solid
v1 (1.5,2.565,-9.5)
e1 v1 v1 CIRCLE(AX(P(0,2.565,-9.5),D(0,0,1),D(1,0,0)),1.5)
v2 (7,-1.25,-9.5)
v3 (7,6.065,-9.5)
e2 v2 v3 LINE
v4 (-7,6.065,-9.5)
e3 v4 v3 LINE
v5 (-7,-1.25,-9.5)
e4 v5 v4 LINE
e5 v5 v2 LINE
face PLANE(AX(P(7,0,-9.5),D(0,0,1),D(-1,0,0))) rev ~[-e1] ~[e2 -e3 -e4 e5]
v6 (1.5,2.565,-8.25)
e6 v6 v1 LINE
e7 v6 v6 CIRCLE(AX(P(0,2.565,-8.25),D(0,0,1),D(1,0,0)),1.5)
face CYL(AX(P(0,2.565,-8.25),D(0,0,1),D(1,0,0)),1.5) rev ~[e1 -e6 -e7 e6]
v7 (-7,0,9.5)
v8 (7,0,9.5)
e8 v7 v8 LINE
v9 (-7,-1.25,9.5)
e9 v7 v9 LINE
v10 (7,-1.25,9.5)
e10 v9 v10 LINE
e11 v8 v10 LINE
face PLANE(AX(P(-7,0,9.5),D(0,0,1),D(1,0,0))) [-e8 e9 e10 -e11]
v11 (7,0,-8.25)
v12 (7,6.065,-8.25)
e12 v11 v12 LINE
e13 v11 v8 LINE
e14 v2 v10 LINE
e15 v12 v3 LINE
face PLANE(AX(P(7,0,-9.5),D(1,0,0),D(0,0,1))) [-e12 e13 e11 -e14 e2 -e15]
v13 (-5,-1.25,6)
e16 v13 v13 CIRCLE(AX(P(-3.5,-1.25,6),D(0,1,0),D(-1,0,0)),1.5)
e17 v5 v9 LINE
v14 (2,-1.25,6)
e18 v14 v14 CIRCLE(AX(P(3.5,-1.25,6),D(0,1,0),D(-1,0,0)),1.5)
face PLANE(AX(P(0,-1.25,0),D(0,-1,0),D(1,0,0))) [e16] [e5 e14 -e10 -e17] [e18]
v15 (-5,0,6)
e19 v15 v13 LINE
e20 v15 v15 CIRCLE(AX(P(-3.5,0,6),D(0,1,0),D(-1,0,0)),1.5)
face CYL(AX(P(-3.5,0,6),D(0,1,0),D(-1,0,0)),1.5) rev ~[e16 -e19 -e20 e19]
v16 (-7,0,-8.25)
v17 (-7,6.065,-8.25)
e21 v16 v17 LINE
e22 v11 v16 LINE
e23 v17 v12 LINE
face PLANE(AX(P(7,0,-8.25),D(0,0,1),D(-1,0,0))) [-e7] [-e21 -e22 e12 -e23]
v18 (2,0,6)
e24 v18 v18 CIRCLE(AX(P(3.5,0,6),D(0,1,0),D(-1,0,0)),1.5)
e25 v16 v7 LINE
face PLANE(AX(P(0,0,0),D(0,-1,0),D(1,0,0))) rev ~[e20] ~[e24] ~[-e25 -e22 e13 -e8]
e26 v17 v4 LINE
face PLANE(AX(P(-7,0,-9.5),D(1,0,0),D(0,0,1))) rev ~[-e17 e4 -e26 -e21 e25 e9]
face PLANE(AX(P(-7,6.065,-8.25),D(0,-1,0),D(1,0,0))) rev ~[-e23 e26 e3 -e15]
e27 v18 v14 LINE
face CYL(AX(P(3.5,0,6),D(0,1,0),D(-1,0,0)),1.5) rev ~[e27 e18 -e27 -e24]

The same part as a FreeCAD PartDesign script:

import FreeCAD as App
import Part
import Sketcher
Q = App.Units.Quantity


def add_polygon(sketch, points):
    """Adds a closed chain of lines whose ends are joined by coincident constraints."""
    first, n = sketch.GeometryCount, len(points)
    for a, b in zip(points, points[1:] + points[:1]):
        sketch.addGeometry(Part.LineSegment(App.Vector(*a, 0), App.Vector(*b, 0)), False)
    for i in range(n):
        sketch.addConstraint(Sketcher.Constraint("Coincident", first + i, 2, first + (i + 1) % n, 1))

doc = App.newDocument("Part")
body = doc.addObject("PartDesign::Body", "Body")

# Sketch on XZ plane
sketch1 = body.newObject("Sketcher::SketchObject", "Sketch")
sketch1.AttachmentSupport = (doc.getObject("XZ_Plane"), [""])
sketch1.MapMode = "FlatFace"
add_polygon(sketch1, [(-7, 9.5), (-7, -9.5), (7, -9.5), (7, 9.5)])  # lines 0-3
sketch1.addConstraint(Sketcher.Constraint("Vertical", 0))
sketch1.addConstraint(Sketcher.Constraint("Horizontal", 1))
sketch1.addConstraint(Sketcher.Constraint("Vertical", 2))
sketch1.addConstraint(Sketcher.Constraint("Horizontal", 3))
sketch1.addConstraint(Sketcher.Constraint("Symmetric", 0, 2, 2, 2, -1, 1))
sketch1.addConstraint(Sketcher.Constraint("DistanceX", 1, 1, 1, 2, Q("14 mm")))
sketch1.addConstraint(Sketcher.Constraint("DistanceY", 0, 2, 0, 1, Q("19 mm")))
pad1 = body.newObject("PartDesign::Pad", "Pad")
pad1.Profile = sketch1
pad1.Length = 1.25

# Sketch on XZ plane
sketch2 = body.newObject("Sketcher::SketchObject", "Sketch001")
sketch2.AttachmentSupport = (doc.getObject("XZ_Plane"), [""])
sketch2.MapMode = "FlatFace"
add_polygon(sketch2, [(7, -8.25), (7, -9.5), (-7, -9.5), (-7, -8.25)])  # lines 0-3
sketch2.addConstraint(Sketcher.Constraint("Vertical", 0))
sketch2.addConstraint(Sketcher.Constraint("Horizontal", 1))
sketch2.addConstraint(Sketcher.Constraint("Vertical", 2))
sketch2.addConstraint(Sketcher.Constraint("Horizontal", 3))
sketch2.addConstraint(Sketcher.Constraint("DistanceX", 1, 2, 1, 1, Q("14 mm")))
sketch2.addConstraint(Sketcher.Constraint("DistanceX", -1, 1, 0, 2, Q("7 mm")))
sketch2.addConstraint(Sketcher.Constraint("DistanceY", 0, 2, 0, 1, Q("1.25 mm")))
sketch2.addConstraint(Sketcher.Constraint("DistanceY", 0, 2, -1, 1, Q("9.5 mm")))
pad2 = body.newObject("PartDesign::Pad", "Pad001")
pad2.Profile = sketch2
pad2.Length = 17.75
pad2.Reversed = True

# Sketch on XZ plane
sketch3 = body.newObject("Sketcher::SketchObject", "Sketch002")
sketch3.AttachmentSupport = (doc.getObject("XZ_Plane"), [""])
sketch3.MapMode = "FlatFace"
sketch3.addGeometry(Part.Circle(App.Vector(3.5, 6, 0), App.Vector(0, 0, 1), 1.5), False)
sketch3.addGeometry(Part.Circle(App.Vector(-3.5, 6, 0), App.Vector(0, 0, 1), 1.5), False)
sketch3.addConstraint(Sketcher.Constraint("Equal", 0, 1))
sketch3.addConstraint(Sketcher.Constraint("Symmetric", 0, 3, 1, 3, -2))
sketch3.addConstraint(Sketcher.Constraint("Diameter", 0, Q("3 mm")))
sketch3.addConstraint(Sketcher.Constraint("DistanceY", -1, 1, 0, 3, Q("6 mm")))
sketch3.addConstraint(Sketcher.Constraint("DistanceX", 1, 3, 0, 3, Q("7 mm")))
pocket1 = body.newObject("PartDesign::Pocket", "Pocket")
pocket1.Profile = sketch3
pocket1.Length = 25
pocket1.Reversed = True

# Sketch on XY plane
sketch4 = body.newObject("Sketcher::SketchObject", "Sketch003")
sketch4.AttachmentSupport = (doc.getObject("XY_Plane"), [""])
sketch4.MapMode = "FlatFace"
sketch4.AttachmentOffset = App.Placement(App.Vector(0, 0, -8.25), App.Rotation())
sketch4.addGeometry(Part.Circle(App.Vector(0, 2.565, 0), App.Vector(0, 0, 1), 1.5), False)
sketch4.addConstraint(Sketcher.Constraint("PointOnObject", 0, 3, -2))
sketch4.addConstraint(Sketcher.Constraint("Diameter", 0, Q("3 mm")))
sketch4.addConstraint(Sketcher.Constraint("DistanceY", -1, 1, 0, 3, Q("2.565 mm")))
pocket2 = body.newObject("PartDesign::Pocket", "Pocket001")
pocket2.Profile = sketch4
pocket2.Length = 25

# Sketch on XY plane
sketch5 = body.newObject("Sketcher::SketchObject", "Sketch004")
sketch5.AttachmentSupport = (doc.getObject("XY_Plane"), [""])
sketch5.MapMode = "FlatFace"
sketch5.AttachmentOffset = App.Placement(App.Vector(0, 0, -8.25), App.Rotation())
add_polygon(sketch5, [(-7, 17.75), (-7, 6.065), (7, 6.065), (7, 17.75)])  # lines 0-3
sketch5.addConstraint(Sketcher.Constraint("Vertical", 0))
sketch5.addConstraint(Sketcher.Constraint("Horizontal", 1))
sketch5.addConstraint(Sketcher.Constraint("Vertical", 2))
sketch5.addConstraint(Sketcher.Constraint("Horizontal", 3))
sketch5.addConstraint(Sketcher.Constraint("DistanceX", 1, 1, 1, 2, Q("14 mm")))
sketch5.addConstraint(Sketcher.Constraint("DistanceX", 0, 2, -1, 1, Q("7 mm")))
sketch5.addConstraint(Sketcher.Constraint("DistanceY", 0, 2, 0, 1, Q("11.685 mm")))
sketch5.addConstraint(Sketcher.Constraint("DistanceY", -1, 1, 2, 2, Q("17.75 mm")))
pocket3 = body.newObject("PartDesign::Pocket", "Pocket002")
pocket3.Profile = sketch5
pocket3.Length = 25

doc.recompute()
